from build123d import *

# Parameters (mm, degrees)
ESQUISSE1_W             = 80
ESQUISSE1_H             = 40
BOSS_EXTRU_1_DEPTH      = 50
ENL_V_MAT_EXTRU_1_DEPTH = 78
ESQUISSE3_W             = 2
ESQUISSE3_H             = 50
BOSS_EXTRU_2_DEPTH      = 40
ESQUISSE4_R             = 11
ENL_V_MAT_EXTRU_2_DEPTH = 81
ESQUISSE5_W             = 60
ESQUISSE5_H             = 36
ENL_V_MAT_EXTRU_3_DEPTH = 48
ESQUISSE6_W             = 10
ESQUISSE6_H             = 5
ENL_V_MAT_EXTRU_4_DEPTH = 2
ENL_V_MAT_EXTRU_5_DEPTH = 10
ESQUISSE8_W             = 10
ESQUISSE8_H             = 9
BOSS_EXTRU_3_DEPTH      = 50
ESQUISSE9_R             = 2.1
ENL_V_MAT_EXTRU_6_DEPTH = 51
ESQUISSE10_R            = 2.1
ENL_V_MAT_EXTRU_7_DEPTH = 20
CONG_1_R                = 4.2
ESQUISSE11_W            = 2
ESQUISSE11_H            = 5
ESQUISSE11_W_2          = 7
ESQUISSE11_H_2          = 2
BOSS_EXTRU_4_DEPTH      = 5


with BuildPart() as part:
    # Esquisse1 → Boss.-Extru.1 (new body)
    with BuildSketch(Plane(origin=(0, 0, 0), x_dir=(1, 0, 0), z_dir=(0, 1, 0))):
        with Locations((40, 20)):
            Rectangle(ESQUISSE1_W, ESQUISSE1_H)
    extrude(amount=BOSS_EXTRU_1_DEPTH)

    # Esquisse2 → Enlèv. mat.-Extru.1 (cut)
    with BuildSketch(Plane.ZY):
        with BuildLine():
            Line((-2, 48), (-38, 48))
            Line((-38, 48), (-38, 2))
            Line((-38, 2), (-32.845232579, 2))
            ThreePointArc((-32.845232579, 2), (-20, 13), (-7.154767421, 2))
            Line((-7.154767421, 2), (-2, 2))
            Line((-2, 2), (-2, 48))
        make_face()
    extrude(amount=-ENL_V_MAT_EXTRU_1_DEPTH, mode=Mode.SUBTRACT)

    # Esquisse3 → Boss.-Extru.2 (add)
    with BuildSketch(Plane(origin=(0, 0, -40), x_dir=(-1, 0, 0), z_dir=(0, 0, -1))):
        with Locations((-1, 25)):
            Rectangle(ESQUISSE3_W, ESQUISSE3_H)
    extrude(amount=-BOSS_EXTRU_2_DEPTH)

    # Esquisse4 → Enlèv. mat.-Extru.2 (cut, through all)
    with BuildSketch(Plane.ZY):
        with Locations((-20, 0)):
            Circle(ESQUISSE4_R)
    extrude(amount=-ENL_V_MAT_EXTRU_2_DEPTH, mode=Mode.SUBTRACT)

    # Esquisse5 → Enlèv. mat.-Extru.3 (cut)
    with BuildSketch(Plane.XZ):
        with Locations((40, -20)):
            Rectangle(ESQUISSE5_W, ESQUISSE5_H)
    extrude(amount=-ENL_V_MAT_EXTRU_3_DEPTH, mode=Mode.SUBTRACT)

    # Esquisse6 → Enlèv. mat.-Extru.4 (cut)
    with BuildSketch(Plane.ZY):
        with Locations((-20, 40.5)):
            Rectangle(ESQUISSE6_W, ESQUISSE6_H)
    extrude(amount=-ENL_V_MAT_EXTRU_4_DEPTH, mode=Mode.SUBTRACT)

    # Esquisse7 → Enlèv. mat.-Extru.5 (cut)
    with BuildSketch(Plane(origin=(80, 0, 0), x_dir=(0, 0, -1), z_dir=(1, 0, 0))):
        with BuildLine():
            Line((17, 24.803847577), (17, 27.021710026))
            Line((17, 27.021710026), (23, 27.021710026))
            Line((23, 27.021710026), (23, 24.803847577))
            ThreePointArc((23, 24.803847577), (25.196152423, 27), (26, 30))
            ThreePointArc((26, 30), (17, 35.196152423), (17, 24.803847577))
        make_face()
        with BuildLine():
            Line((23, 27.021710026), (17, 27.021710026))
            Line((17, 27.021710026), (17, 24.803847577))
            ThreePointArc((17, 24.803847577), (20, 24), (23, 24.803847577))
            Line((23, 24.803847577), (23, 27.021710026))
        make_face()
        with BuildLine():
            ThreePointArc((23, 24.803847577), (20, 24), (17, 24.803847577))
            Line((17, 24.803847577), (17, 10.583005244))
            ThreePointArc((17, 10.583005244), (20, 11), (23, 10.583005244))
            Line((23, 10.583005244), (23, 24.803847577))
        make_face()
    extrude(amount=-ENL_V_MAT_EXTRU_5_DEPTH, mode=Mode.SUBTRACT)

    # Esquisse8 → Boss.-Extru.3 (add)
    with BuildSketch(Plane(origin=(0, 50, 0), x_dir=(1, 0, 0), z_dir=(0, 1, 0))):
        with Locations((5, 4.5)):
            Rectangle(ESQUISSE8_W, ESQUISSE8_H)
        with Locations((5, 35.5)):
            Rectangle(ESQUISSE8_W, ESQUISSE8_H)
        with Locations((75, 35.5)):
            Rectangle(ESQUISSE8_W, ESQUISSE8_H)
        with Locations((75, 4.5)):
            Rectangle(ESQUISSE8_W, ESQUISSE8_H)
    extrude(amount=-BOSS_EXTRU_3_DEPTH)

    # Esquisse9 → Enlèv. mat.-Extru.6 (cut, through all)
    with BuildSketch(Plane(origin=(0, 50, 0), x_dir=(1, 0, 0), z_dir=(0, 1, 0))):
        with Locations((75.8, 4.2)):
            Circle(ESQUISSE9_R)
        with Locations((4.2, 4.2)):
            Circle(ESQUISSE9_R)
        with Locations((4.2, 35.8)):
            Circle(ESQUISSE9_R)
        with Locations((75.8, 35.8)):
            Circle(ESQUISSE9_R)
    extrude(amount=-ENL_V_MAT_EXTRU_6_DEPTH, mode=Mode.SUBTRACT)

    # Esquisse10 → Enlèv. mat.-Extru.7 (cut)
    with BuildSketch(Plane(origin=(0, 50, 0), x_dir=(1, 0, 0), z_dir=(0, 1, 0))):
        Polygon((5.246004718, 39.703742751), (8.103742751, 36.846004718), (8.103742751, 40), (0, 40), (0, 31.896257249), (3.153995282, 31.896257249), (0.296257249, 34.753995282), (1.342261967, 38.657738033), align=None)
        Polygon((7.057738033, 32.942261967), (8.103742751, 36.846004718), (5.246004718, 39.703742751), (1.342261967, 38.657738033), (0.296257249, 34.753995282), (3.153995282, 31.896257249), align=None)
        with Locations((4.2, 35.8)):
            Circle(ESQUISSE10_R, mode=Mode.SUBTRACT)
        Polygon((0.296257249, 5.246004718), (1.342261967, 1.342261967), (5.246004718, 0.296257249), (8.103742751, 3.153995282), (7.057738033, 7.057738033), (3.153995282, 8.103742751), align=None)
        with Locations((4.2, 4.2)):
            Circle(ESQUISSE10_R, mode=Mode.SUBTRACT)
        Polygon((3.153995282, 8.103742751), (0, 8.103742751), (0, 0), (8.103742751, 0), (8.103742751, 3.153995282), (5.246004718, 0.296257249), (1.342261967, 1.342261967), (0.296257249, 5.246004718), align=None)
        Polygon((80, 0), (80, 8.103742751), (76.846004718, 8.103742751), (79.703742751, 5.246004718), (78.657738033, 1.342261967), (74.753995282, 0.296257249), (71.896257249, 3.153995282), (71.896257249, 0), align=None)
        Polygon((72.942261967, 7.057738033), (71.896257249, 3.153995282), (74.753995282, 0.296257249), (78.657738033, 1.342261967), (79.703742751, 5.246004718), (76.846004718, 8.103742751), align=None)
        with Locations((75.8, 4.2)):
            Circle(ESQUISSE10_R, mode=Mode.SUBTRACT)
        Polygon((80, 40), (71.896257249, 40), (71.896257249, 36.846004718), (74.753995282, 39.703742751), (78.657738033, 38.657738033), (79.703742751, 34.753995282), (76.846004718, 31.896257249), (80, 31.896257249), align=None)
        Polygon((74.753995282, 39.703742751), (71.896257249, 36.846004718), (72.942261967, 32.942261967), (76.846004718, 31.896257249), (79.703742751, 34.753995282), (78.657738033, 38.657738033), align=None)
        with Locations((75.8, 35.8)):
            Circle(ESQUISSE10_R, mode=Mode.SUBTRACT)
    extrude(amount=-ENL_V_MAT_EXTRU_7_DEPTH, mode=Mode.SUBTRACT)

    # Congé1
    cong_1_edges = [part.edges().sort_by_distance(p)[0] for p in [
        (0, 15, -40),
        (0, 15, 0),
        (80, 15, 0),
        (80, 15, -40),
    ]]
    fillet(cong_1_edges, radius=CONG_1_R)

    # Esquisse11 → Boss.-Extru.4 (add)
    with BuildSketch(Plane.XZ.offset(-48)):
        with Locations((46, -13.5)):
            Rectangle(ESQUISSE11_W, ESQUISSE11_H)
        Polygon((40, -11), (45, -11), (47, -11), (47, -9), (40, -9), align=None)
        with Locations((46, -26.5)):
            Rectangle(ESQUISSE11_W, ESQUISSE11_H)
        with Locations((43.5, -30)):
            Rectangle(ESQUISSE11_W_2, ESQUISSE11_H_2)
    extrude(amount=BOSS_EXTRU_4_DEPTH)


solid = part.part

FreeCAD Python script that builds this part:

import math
import FreeCAD as App
import Part
import Sketcher
from FreeCAD import Vector
Q = App.Units.Quantity


def edges_at(feature, points):
    """Names of the edges that pass closest to the given points."""
    edges = feature.Shape.Edges
    near = lambda p: min(range(len(edges)), key=lambda i: edges[i].distToShape(Part.Vertex(*p))[0])
    return sorted({f"Edge{near(p) + 1}" for p in points})


def add_polygon(sketch, points):
    """Adds a closed chain of lines whose ends are joined by coincident constraints."""
    first, n = sketch.GeometryCount, len(points)
    for a, b in zip(points, points[1:] + points[:1]):
        sketch.addGeometry(Part.LineSegment(App.Vector(*a, 0), App.Vector(*b, 0)), False)
    for i in range(n):
        sketch.addConstraint(Sketcher.Constraint("Coincident", first + i, 2, first + (i + 1) % n, 1))

doc = App.newDocument("Part")
body = doc.addObject("PartDesign::Body", "Body")

# Sketch on XZ plane
sketch1 = body.newObject("Sketcher::SketchObject", "Sketch")
sketch1.AttachmentSupport = (doc.getObject("XZ_Plane"), [""])
sketch1.MapMode = "FlatFace"
add_polygon(sketch1, [(0, -40), (0, 0), (80, 0), (80, -40)])  # lines 0-3
sketch1.addConstraint([
    Sketcher.Constraint("Vertical", 0),
    Sketcher.Constraint("Horizontal", 1),
    Sketcher.Constraint("Vertical", 2),
    Sketcher.Constraint("Horizontal", 3),
    Sketcher.Constraint("Coincident", 0, 2, -1, 1),
    Sketcher.Constraint("DistanceX", 1, 1, 1, 2, Q("80 mm")),
    Sketcher.Constraint("DistanceY", 0, 1, 0, 2, Q("40 mm")),
])
pad1 = body.newObject("PartDesign::Pad", "Pad")
pad1.Profile = sketch1
pad1.Length = 50
pad1.Reversed = True

# Sketch on YZ plane
sketch2 = body.newObject("Sketcher::SketchObject", "Sketch001")
sketch2.AttachmentSupport = (doc.getObject("YZ_Plane"), [""])
sketch2.MapMode = "FlatFace"
sketch2.addGeometry([
    Part.LineSegment(Vector(48, -2, 0), Vector(48, -38, 0)),  # 0
    Part.LineSegment(Vector(48, -38, 0), Vector(2, -38, 0)),  # 1
    Part.LineSegment(Vector(2, -38, 0), Vector(2, -32.845233, 0)),  # 2
    Part.ArcOfCircle(Part.Circle(Vector(0, -20, 0), Vector(0, 0, 1), 13), math.radians(-81.150117), math.radians(81.150117)),  # 3
    Part.LineSegment(Vector(2, -7.154767, 0), Vector(2, -2, 0)),  # 4
    Part.LineSegment(Vector(2, -2, 0), Vector(48, -2, 0)),  # 5
], False)
sketch2.addConstraint([
    Sketcher.Constraint("Coincident", 0, 2, 1, 1),
    Sketcher.Constraint("Coincident", 1, 2, 2, 1),
    Sketcher.Constraint("Coincident", 2, 2, 3, 1),
    Sketcher.Constraint("Coincident", 3, 2, 4, 1),
    Sketcher.Constraint("Coincident", 4, 2, 5, 1),
    Sketcher.Constraint("Coincident", 5, 2, 0, 1),
    Sketcher.Constraint("Vertical", 0),
    Sketcher.Constraint("Horizontal", 1),
    Sketcher.Constraint("Vertical", 2),
    Sketcher.Constraint("Vertical", 4),
    Sketcher.Constraint("Horizontal", 5),
    Sketcher.Constraint("PointOnObject", 3, 3, -2),
    Sketcher.Constraint("Vertical", 2, 2, 3, 2),
    Sketcher.Constraint("Equal", 2, 4),
    Sketcher.Constraint("Radius", 3, Q("13 mm")),
    Sketcher.Constraint("DistanceX", 1, 2, 1, 1, Q("46 mm")),
    Sketcher.Constraint("DistanceY", 0, 2, 0, 1, Q("36 mm")),
    Sketcher.Constraint("DistanceY", 3, 3, -1, 1, Q("20 mm")),
    Sketcher.Constraint("DistanceX", -1, 1, 0, 2, Q("48 mm")),
])
pocket1 = body.newObject("PartDesign::Pocket", "Pocket")
pocket1.Profile = sketch2
pocket1.Length = 78
pocket1.Reversed = True

# Sketch on XY plane
sketch3 = body.newObject("Sketcher::SketchObject", "Sketch002")
sketch3.AttachmentSupport = (doc.getObject("XY_Plane"), [""])
sketch3.MapMode = "FlatFace"
sketch3.AttachmentOffset = App.Placement(Vector(0, 0, -40), App.Rotation())
add_polygon(sketch3, [(2, 50), (2, 0), (0, 0), (0, 50)])  # lines 0-3
sketch3.addConstraint([
    Sketcher.Constraint("Vertical", 0),
    Sketcher.Constraint("Horizontal", 1),
    Sketcher.Constraint("Vertical", 2),
    Sketcher.Constraint("Horizontal", 3),
    Sketcher.Constraint("Coincident", 1, 2, -1, 1),
    Sketcher.Constraint("DistanceX", 1, 2, 1, 1, Q("2 mm")),
    Sketcher.Constraint("DistanceY", 0, 2, 0, 1, Q("50 mm")),
])
pad2 = body.newObject("PartDesign::Pad", "Pad001")
pad2.Profile = sketch3
pad2.Length = 40

# Sketch on YZ plane
sketch4 = body.newObject("Sketcher::SketchObject", "Sketch003")
sketch4.AttachmentSupport = (doc.getObject("YZ_Plane"), [""])
sketch4.MapMode = "FlatFace"
sketch4.addGeometry(Part.Circle(Vector(0, -20, 0), Vector(0, 0, 1), 11), False)
sketch4.addConstraint([
    Sketcher.Constraint("PointOnObject", 0, 3, -2),
    Sketcher.Constraint("Diameter", 0, Q("22 mm")),
    Sketcher.Constraint("DistanceY", 0, 3, -1, 1, Q("20 mm")),
])
pocket2 = body.newObject("PartDesign::Pocket", "Pocket001")
pocket2.Profile = sketch4
pocket2.Type = "ThroughAll"
pocket2.Reversed = True

# Sketch on XZ plane
sketch5 = body.newObject("Sketcher::SketchObject", "Sketch004")
sketch5.AttachmentSupport = (doc.getObject("XZ_Plane"), [""])
sketch5.MapMode = "FlatFace"
add_polygon(sketch5, [(10, -2), (10, -38), (70, -38), (70, -2)])  # lines 0-3
sketch5.addConstraint([
    Sketcher.Constraint("Vertical", 0),
    Sketcher.Constraint("Horizontal", 1),
    Sketcher.Constraint("Vertical", 2),
    Sketcher.Constraint("Horizontal", 3),
    Sketcher.Constraint("DistanceX", 1, 1, 1, 2, Q("60 mm")),
    Sketcher.Constraint("DistanceY", 0, 2, 0, 1, Q("36 mm")),
    Sketcher.Constraint("DistanceX", -1, 1, 0, 2, Q("10 mm")),
    Sketcher.Constraint("DistanceY", 0, 2, -1, 1, Q("38 mm")),
])
pocket3 = body.newObject("PartDesign::Pocket", "Pocket002")
pocket3.Profile = sketch5
pocket3.Length = 48

# Sketch on YZ plane
sketch6 = body.newObject("Sketcher::SketchObject", "Sketch005")
sketch6.AttachmentSupport = (doc.getObject("YZ_Plane"), [""])
sketch6.MapMode = "FlatFace"
add_polygon(sketch6, [(43, -25), (38, -25), (38, -15), (43, -15)])  # lines 0-3
sketch6.addConstraint([
    Sketcher.Constraint("Horizontal", 0),
    Sketcher.Constraint("Vertical", 1),
    Sketcher.Constraint("Horizontal", 2),
    Sketcher.Constraint("Vertical", 3),
    Sketcher.Constraint("DistanceX", 0, 2, 0, 1, Q("5 mm")),
    Sketcher.Constraint("DistanceY", 1, 1, 1, 2, Q("10 mm")),
    Sketcher.Constraint("DistanceX", -1, 1, 0, 2, Q("38 mm")),
    Sketcher.Constraint("DistanceY", 0, 2, -1, 1, Q("25 mm")),
])
pocket4 = body.newObject("PartDesign::Pocket", "Pocket003")
pocket4.Profile = sketch6
pocket4.Length = 2
pocket4.Reversed = True

# Sketch on YZ plane
sketch7 = body.newObject("Sketcher::SketchObject", "Sketch006")
sketch7.AttachmentSupport = (doc.getObject("YZ_Plane"), [""])
sketch7.MapMode = "FlatFace"
sketch7.AttachmentOffset = App.Placement(Vector(0, 0, 80), App.Rotation())
sketch7.addGeometry([
    Part.ArcOfCircle(Part.Circle(Vector(30, -20, 0), Vector(0, 0, 1), 6), math.radians(-150), math.radians(-90)),  # 0
    Part.ArcOfCircle(Part.Circle(Vector(30, -20, 0), Vector(0, 0, 1), 6), math.radians(-90), math.radians(150)),  # 1
    Part.LineSegment(Vector(24.803848, -17, 0), Vector(10.583005, -17, 0)),  # 2
    Part.ArcOfCircle(Part.Circle(Vector(0, -20, 0), Vector(0, 0, 1), 11), math.radians(-15.82662), math.radians(15.82662)),  # 3
    Part.LineSegment(Vector(10.583005, -23, 0), Vector(24.803848, -23, 0)),  # 4
], False)
sketch7.addConstraint([
    Sketcher.Constraint("Tangent", 0, 2, 1, 1),
    Sketcher.Constraint("Coincident", 1, 2, 2, 1),
    Sketcher.Constraint("Coincident", 2, 2, 3, 2),
    Sketcher.Constraint("Coincident", 3, 1, 4, 1),
    Sketcher.Constraint("Coincident", 4, 2, 0, 1),
    Sketcher.Constraint("Horizontal", 2),
    Sketcher.Constraint("Horizontal", 4),
    Sketcher.Constraint("Equal", 0, 1),
    Sketcher.Constraint("PointOnObject", 3, 3, -2),
    Sketcher.Constraint("Horizontal", 1, 3, 3, 3),
    Sketcher.Constraint("Vertical", 1, 3, 0, 2),
    Sketcher.Constraint("Vertical", 2, 2, 3, 1),
    Sketcher.Constraint("Radius", 0, Q("6 mm")),
    Sketcher.Constraint("Radius", 3, Q("11 mm")),
    Sketcher.Constraint("DistanceX", -1, 1, 0, 3, Q("30 mm")),
    Sketcher.Constraint("DistanceY", 0, 3, -1, 1, Q("20 mm")),
    Sketcher.Constraint("DistanceY", 1, 2, -1, 1, Q("17 mm")),
])
pocket5 = body.newObject("PartDesign::Pocket", "Pocket004")
pocket5.Profile = sketch7
pocket5.Length = 10

# Sketch on XZ plane
sketch8 = body.newObject("Sketcher::SketchObject", "Sketch007")
sketch8.AttachmentSupport = (doc.getObject("XZ_Plane"), [""])
sketch8.MapMode = "FlatFace"
sketch8.AttachmentOffset = App.Placement(Vector(0, 0, -50), App.Rotation())
add_polygon(sketch8, [(0, -9), (0, 0), (10, 0), (10, -9)])  # lines 0-3
add_polygon(sketch8, [(0, -40), (0, -31), (10, -31), (10, -40)])  # lines 4-7
add_polygon(sketch8, [(70, -40), (70, -31), (80, -31), (80, -40)])  # lines 8-11
add_polygon(sketch8, [(70, -9), (70, 0), (80, 0), (80, -9)])  # lines 12-15
sketch8.addConstraint([
    Sketcher.Constraint("Vertical", 0),
    Sketcher.Constraint("Horizontal", 1),
    Sketcher.Constraint("Vertical", 2),
    Sketcher.Constraint("Horizontal", 3),
    Sketcher.Constraint("Vertical", 4),
    Sketcher.Constraint("Horizontal", 5),
    Sketcher.Constraint("Vertical", 6),
    Sketcher.Constraint("Horizontal", 7),
    Sketcher.Constraint("Vertical", 8),
    Sketcher.Constraint("Horizontal", 9),
    Sketcher.Constraint("Vertical", 10),
    Sketcher.Constraint("Horizontal", 11),
    Sketcher.Constraint("Vertical", 12),
    Sketcher.Constraint("Horizontal", 13),
    Sketcher.Constraint("Vertical", 14),
    Sketcher.Constraint("Horizontal", 15),
    Sketcher.Constraint("Coincident", 0, 2, -1, 1),
    Sketcher.Constraint("PointOnObject", 4, 2, -2),
    Sketcher.Constraint("PointOnObject", 12, 2, -1),
    Sketcher.Constraint("Horizontal", 5, 2, 8, 2),
    Sketcher.Constraint("Horizontal", 7, 2, 10, 2),
    Sketcher.Constraint("Horizontal", 3, 2, 14, 2),
    Sketcher.Constraint("Vertical", 2, 2, 5, 2),
    Sketcher.Constraint("Vertical", 11, 2, 12, 2),
    Sketcher.Constraint("Vertical", 10, 2, 13, 2),
    Sketcher.Constraint("Equal", 7, 9),
    Sketcher.Constraint("Equal", 2, 4),
    Sketcher.Constraint("DistanceX", 1, 1, 1, 2, Q("10 mm")),
    Sketcher.Constraint("DistanceY", 0, 1, 0, 2, Q("9 mm")),
    Sketcher.Constraint("DistanceY", 4, 2, -1, 1, Q("31 mm")),
    Sketcher.Constraint("DistanceX", -1, 1, 8, 2, Q("70 mm")),
])
pad3 = body.newObject("PartDesign::Pad", "Pad002")
pad3.Profile = sketch8
pad3.Length = 50

# Sketch on XZ plane
sketch9 = body.newObject("Sketcher::SketchObject", "Sketch008")
sketch9.AttachmentSupport = (doc.getObject("XZ_Plane"), [""])
sketch9.MapMode = "FlatFace"
sketch9.AttachmentOffset = App.Placement(Vector(0, 0, -50), App.Rotation())
sketch9.addGeometry([
    Part.Circle(Vector(75.8, -4.2, 0), Vector(0, 0, 1), 2.1),
    Part.Circle(Vector(4.2, -4.2, 0), Vector(0, 0, 1), 2.1),
    Part.Circle(Vector(4.2, -35.8, 0), Vector(0, 0, 1), 2.1),
    Part.Circle(Vector(75.8, -35.8, 0), Vector(0, 0, 1), 2.1),
], False)
sketch9.addConstraint([
    Sketcher.Constraint("Equal", 0, 1),
    Sketcher.Constraint("Equal", 1, 2),
    Sketcher.Constraint("Equal", 2, 3),
    Sketcher.Constraint("Horizontal", 0, 3, 1, 3),
    Sketcher.Constraint("Horizontal", 2, 3, 3, 3),
    Sketcher.Constraint("Vertical", 1, 3, 2, 3),
    Sketcher.Constraint("Vertical", 0, 3, 3, 3),
    Sketcher.Constraint("Diameter", 0, Q("4.2 mm")),
    Sketcher.Constraint("DistanceX", -1, 1, 0, 3, Q("75.8 mm")),
    Sketcher.Constraint("DistanceY", 0, 3, -1, 1, Q("4.2 mm")),
    Sketcher.Constraint("DistanceX", -1, 1, 1, 3, Q("4.2 mm")),
    Sketcher.Constraint("DistanceY", 2, 3, -1, 1, Q("35.8 mm")),
])
pocket6 = body.newObject("PartDesign::Pocket", "Pocket005")
pocket6.Profile = sketch9
pocket6.Type = "ThroughAll"
pocket6.Reversed = True

# Sketch on XZ plane
sketch10 = body.newObject("Sketcher::SketchObject", "Sketch009")
sketch10.AttachmentSupport = (doc.getObject("XZ_Plane"), [""])
sketch10.MapMode = "FlatFace"
sketch10.AttachmentOffset = App.Placement(Vector(0, 0, -50), App.Rotation())
add_polygon(sketch10, [(8.103743, -36.846005), (8.103743, -40), (0, -40), (0, -31.896257), (3.153995, -31.896257), (7.057738, -32.942262)])  # lines 0-5
sketch10.addGeometry(Part.Circle(Vector(4.2, -35.8, 0), Vector(0, 0, 1), 2.1), False)  # 6
add_polygon(sketch10, [(7.057738, -7.057738), (3.153995, -8.103743), (0, -8.103743), (0, 0), (8.103743, 0), (8.103743, -3.153995)])  # lines 7-12
sketch10.addGeometry(Part.Circle(Vector(4.2, -4.2, 0), Vector(0, 0, 1), 2.1), False)  # 13
add_polygon(sketch10, [(80, 0), (80, -8.103743), (76.846005, -8.103743), (72.942262, -7.057738), (71.896257, -3.153995), (71.896257, 0)])  # lines 14-19
sketch10.addGeometry(Part.Circle(Vector(75.8, -4.2, 0), Vector(0, 0, 1), 2.1), False)  # 20
add_polygon(sketch10, [(80, -40), (71.896257, -40), (71.896257, -36.846005), (72.942262, -32.942262), (76.846005, -31.896257), (80, -31.896257)])  # lines 21-26
sketch10.addGeometry(Part.Circle(Vector(75.8, -35.8, 0), Vector(0, 0, 1), 2.1), False)  # 27
sketch10.addConstraint([
    Sketcher.Constraint("Vertical", 0),
    Sketcher.Constraint("Horizontal", 1),
    Sketcher.Constraint("Vertical", 2),
    Sketcher.Constraint("Horizontal", 3),
    Sketcher.Constraint("Horizontal", 8),
    Sketcher.Constraint("Vertical", 9),
    Sketcher.Constraint("Horizontal", 10),
    Sketcher.Constraint("Vertical", 11),
    Sketcher.Constraint("Vertical", 14),
    Sketcher.Constraint("Horizontal", 15),
    Sketcher.Constraint("Vertical", 18),
    Sketcher.Constraint("Horizontal", 19),
    Sketcher.Constraint("Horizontal", 21),
    Sketcher.Constraint("Vertical", 22),
    Sketcher.Constraint("Horizontal", 25),
    Sketcher.Constraint("Vertical", 26),
    Sketcher.Constraint("Coincident", 9, 2, -1, 1),
    Sketcher.Constraint("Equal", 6, 13),
    Sketcher.Constraint("Equal", 13, 20),
    Sketcher.Constraint("Equal", 20, 27),
    Sketcher.Constraint("PointOnObject", 1, 2, -2),
    Sketcher.Constraint("PointOnObject", 18, 2, -1),
    Sketcher.Constraint("Perpendicular", 5, 7),
    Sketcher.Constraint("Perpendicular", 4, 12),
    Sketcher.Constraint("Perpendicular", 12, 16),
    Sketcher.Constraint("Perpendicular", 7, 17),
    Sketcher.Constraint("Perpendicular", 16, 23),
    Sketcher.Constraint("Perpendicular", 17, 24),
    Sketcher.Constraint("Horizontal", 13, 3, 20, 3),
    Sketcher.Constraint("Horizontal", 6, 3, 27, 3),
    Sketcher.Constraint("Horizontal", 8, 2, 14, 2),
    Sketcher.Constraint("Horizontal", 12, 2, 16, 2),
    Sketcher.Constraint("Horizontal", 11, 2, 17, 2),
    Sketcher.Constraint("Horizontal", 1, 2, 21, 2),
    Sketcher.Constraint("Horizontal", 5, 2, 22, 2),
    Sketcher.Constraint("Horizontal", 4, 2, 23, 2),
    Sketcher.Constraint("Horizontal", 3, 2, 24, 2),
    Sketcher.Constraint("Vertical", 6, 3, 13, 3),
    Sketcher.Constraint("Vertical", 20, 3, 27, 3),
    Sketcher.Constraint("Vertical", 3, 2, 7, 2),
    Sketcher.Constraint("Vertical", 5, 2, 10, 2),
    Sketcher.Constraint("Vertical", 4, 2, 12, 2),
    Sketcher.Constraint("Vertical", 18, 2, 21, 2),
    Sketcher.Constraint("Vertical", 16, 2, 23, 2),
    Sketcher.Constraint("Vertical", 19, 2, 25, 2),
    Sketcher.Constraint("Equal", 8, 15),
    Sketcher.Constraint("Equal", 25, 0),
    Sketcher.Constraint("Equal", 21, 2),
    Sketcher.Constraint("Equal", 2, 9),
    Sketcher.Constraint("Diameter", 6, Q("4.2 mm")),
    Sketcher.Constraint("Angle", 4, Q("-15 deg")),
    Sketcher.Constraint("DistanceY", 0, 2, -1, 1, Q("40 mm")),
    Sketcher.Constraint("DistanceX", -1, 1, 14, 2, Q("80 mm")),
    Sketcher.Constraint("DistanceX", -1, 1, 6, 3, Q("4.2 mm")),
    Sketcher.Constraint("DistanceY", 6, 3, -1, 1, Q("35.8 mm")),
    Sketcher.Constraint("DistanceY", 13, 3, -1, 1, Q("4.2 mm")),
    Sketcher.Constraint("DistanceX", -1, 1, 20, 3, Q("75.8 mm")),
    Sketcher.Constraint("Distance", 4, Q("4.041452 mm")),
    Sketcher.Constraint("DistanceX", 1, 2, 1, 1, Q("8.103743 mm")),
])
pocket7 = body.newObject("PartDesign::Pocket", "Pocket006")
pocket7.Profile = sketch10
pocket7.Length = 20
pocket7.Reversed = True
doc.recompute()

fillet = body.newObject("PartDesign::Fillet", "Fillet")
fillet.Base = (pocket7, edges_at(pocket7, [
    (0, 15, -40),
    (0, 15, 0),
    (80, 15, 0),
    (80, 15, -40),
]))
fillet.Radius = 4.2

# Sketch on XZ plane
sketch11 = body.newObject("Sketcher::SketchObject", "Sketch010")
sketch11.AttachmentSupport = (doc.getObject("XZ_Plane"), [""])
sketch11.MapMode = "FlatFace"
sketch11.AttachmentOffset = App.Placement(Vector(0, 0, -48), App.Rotation())
add_polygon(sketch11, [(45, -11), (45, -16), (47, -16), (47, -9), (40, -9), (40, -11)])  # lines 0-5
add_polygon(sketch11, [(45, -24), (45, -29), (40, -29), (40, -31), (47, -31), (47, -24)])  # lines 6-11
sketch11.addConstraint([
    Sketcher.Constraint("Vertical", 0),
    Sketcher.Constraint("Horizontal", 1),
    Sketcher.Constraint("Vertical", 2),
    Sketcher.Constraint("Horizontal", 3),
    Sketcher.Constraint("Vertical", 4),
    Sketcher.Constraint("Horizontal", 5),
    Sketcher.Constraint("Vertical", 6),
    Sketcher.Constraint("Horizontal", 7),
    Sketcher.Constraint("Vertical", 8),
    Sketcher.Constraint("Horizontal", 9),
    Sketcher.Constraint("Vertical", 10),
    Sketcher.Constraint("Horizontal", 11),
    Sketcher.Constraint("Vertical", 5, 2, 6, 2),
    Sketcher.Constraint("Vertical", 4, 2, 7, 2),
    Sketcher.Constraint("Vertical", 2, 2, 9, 2),
    Sketcher.Constraint("Equal", 7, 0),
    Sketcher.Constraint("Equal", 9, 2),
    Sketcher.Constraint("Equal", 0, 6),
    Sketcher.Constraint("Equal", 4, 8),
    Sketcher.Constraint("DistanceX", 1, 1, 1, 2, Q("2 mm")),
    Sketcher.Constraint("DistanceX", 3, 2, 3, 1, Q("7 mm")),
    Sketcher.Constraint("DistanceX", -1, 1, 0, 2, Q("45 mm")),
    Sketcher.Constraint("DistanceY", 0, 2, -1, 1, Q("16 mm")),
    Sketcher.Constraint("DistanceY", 6, 2, -1, 1, Q("29 mm")),
])
pad4 = body.newObject("PartDesign::Pad", "Pad003")
pad4.Profile = sketch11
pad4.Length = 5

doc.recompute()
